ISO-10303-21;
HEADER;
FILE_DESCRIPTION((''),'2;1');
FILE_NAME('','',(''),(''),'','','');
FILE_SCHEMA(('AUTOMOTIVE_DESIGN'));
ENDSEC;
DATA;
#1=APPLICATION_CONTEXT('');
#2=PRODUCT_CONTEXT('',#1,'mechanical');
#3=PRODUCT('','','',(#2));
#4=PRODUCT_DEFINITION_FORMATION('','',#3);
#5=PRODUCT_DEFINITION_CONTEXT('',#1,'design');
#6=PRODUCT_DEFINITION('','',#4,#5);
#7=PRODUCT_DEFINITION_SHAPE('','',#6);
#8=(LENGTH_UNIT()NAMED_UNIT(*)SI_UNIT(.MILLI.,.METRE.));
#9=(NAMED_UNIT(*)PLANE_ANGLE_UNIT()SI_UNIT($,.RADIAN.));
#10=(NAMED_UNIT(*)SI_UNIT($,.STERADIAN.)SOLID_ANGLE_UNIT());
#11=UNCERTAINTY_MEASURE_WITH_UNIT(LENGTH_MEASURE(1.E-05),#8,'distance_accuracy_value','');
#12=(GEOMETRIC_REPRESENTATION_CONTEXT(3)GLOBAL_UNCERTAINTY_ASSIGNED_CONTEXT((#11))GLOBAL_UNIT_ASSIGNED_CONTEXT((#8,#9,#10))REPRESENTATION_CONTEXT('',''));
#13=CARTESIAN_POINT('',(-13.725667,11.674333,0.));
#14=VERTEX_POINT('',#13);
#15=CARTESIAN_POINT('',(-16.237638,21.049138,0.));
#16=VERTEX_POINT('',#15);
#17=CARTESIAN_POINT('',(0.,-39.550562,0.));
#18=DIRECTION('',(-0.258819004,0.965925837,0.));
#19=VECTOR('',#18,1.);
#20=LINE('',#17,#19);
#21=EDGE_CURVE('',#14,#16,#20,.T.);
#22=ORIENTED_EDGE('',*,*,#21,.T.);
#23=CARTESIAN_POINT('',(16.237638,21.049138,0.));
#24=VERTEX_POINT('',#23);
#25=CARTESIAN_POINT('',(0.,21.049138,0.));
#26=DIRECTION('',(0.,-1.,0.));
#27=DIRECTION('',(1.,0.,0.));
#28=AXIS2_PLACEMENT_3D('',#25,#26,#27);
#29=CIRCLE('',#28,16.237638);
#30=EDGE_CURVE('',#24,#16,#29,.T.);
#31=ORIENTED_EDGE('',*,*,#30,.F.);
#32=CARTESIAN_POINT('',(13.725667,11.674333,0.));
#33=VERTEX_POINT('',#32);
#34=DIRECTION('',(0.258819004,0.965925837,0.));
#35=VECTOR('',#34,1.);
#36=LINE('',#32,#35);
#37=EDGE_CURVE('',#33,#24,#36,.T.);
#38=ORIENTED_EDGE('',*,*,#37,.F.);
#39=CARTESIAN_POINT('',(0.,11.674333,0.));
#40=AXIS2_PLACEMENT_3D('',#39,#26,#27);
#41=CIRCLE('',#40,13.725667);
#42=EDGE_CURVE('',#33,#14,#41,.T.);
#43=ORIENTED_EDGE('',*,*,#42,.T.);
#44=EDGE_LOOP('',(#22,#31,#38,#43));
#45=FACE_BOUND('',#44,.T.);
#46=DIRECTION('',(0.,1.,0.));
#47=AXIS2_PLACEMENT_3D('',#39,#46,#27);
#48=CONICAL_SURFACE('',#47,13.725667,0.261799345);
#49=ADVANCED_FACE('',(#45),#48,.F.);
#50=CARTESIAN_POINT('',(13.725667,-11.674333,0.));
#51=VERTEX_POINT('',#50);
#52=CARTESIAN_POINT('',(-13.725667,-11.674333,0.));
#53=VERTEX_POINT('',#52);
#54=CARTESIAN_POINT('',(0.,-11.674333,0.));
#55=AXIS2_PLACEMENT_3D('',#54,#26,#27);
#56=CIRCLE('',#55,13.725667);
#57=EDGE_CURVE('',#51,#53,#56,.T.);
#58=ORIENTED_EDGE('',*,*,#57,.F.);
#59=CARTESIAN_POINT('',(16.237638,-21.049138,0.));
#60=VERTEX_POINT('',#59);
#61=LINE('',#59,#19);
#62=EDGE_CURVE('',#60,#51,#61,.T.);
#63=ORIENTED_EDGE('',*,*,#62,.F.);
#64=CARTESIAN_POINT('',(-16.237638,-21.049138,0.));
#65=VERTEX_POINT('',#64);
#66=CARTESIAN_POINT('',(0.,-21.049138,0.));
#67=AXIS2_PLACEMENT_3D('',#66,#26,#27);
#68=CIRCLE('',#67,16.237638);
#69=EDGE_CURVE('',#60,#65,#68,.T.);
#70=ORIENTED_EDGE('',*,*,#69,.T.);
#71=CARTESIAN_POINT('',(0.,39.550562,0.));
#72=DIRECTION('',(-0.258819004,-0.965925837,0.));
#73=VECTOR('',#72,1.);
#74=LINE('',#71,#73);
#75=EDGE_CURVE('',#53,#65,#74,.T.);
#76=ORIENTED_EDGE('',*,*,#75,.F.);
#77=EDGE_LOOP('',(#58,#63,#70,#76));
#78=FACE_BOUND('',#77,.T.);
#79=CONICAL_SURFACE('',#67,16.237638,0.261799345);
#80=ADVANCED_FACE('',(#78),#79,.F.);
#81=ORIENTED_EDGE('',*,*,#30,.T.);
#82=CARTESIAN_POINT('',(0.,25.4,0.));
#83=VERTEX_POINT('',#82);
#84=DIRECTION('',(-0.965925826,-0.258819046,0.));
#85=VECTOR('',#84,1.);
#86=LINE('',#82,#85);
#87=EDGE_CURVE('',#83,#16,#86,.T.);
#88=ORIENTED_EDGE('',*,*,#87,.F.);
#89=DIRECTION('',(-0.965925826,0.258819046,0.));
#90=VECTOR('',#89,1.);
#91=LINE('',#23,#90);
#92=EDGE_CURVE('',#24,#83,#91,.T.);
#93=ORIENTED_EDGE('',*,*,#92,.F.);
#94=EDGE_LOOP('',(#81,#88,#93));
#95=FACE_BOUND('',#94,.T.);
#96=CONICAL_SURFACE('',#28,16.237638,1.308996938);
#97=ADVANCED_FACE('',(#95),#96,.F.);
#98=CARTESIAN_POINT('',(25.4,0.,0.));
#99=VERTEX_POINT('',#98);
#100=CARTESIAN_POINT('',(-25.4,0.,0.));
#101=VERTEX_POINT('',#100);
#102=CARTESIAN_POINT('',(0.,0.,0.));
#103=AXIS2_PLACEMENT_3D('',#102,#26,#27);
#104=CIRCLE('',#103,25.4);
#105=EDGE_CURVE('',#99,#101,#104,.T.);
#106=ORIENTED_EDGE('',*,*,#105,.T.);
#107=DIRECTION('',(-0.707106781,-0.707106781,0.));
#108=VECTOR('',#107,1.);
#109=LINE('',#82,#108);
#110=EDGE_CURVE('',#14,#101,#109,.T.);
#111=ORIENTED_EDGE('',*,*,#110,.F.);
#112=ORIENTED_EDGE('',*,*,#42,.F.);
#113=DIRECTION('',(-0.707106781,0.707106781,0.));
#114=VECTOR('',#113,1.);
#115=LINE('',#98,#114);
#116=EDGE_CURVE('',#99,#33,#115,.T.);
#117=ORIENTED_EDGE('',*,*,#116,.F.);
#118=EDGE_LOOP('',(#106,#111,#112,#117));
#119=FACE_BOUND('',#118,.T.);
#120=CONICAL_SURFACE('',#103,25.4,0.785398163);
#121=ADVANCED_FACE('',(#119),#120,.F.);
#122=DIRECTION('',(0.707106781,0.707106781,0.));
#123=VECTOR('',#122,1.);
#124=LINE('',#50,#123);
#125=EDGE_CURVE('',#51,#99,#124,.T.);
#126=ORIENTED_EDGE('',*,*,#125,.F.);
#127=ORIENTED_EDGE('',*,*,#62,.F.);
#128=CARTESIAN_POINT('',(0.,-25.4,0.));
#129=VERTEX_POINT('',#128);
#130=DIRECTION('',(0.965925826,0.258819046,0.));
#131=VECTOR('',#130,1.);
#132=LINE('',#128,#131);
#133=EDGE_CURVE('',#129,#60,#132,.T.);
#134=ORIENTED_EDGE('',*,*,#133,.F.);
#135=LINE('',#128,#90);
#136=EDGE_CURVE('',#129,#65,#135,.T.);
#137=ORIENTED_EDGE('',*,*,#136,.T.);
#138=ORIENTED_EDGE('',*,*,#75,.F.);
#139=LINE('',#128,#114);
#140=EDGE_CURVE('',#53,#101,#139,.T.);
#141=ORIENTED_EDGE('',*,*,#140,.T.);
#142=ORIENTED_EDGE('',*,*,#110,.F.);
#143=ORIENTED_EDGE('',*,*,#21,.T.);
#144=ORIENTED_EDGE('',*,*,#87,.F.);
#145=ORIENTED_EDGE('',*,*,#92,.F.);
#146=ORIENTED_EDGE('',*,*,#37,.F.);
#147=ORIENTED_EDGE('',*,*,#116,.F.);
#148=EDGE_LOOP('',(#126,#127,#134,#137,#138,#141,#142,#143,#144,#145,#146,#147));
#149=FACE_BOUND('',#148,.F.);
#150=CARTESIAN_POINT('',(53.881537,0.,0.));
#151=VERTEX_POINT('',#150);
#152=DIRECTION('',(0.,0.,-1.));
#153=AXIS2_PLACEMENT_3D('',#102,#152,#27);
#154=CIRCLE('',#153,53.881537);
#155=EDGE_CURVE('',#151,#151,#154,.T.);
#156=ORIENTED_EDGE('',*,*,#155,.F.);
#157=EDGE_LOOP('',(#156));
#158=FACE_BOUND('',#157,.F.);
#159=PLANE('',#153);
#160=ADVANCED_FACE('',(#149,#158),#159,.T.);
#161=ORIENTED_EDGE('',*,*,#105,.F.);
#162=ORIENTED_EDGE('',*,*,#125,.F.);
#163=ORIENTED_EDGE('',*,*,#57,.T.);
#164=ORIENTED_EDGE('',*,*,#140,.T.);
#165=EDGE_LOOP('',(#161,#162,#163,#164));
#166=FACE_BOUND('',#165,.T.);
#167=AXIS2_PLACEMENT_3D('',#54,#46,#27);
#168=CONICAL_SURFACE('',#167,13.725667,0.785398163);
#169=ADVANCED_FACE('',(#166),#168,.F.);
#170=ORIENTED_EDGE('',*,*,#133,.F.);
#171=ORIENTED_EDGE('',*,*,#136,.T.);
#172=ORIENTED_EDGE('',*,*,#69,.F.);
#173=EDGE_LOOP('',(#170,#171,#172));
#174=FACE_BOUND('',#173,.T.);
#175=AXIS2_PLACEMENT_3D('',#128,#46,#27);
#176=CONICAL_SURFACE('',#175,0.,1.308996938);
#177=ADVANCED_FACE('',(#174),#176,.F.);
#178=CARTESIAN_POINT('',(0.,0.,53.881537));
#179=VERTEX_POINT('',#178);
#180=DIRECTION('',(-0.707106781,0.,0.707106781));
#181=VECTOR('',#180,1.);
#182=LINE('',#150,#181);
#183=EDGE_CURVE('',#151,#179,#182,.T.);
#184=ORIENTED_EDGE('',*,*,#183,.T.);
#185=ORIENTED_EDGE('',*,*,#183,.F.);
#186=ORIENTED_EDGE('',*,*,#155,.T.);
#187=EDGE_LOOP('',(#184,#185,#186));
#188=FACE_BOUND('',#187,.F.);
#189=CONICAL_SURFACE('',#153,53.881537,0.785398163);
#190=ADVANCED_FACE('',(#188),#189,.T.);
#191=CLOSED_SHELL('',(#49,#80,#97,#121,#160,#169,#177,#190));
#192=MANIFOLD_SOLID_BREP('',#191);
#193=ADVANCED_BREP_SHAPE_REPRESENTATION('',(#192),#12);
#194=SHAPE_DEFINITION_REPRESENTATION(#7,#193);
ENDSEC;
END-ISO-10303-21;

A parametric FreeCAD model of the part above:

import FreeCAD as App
import Part
import Sketcher
Q = App.Units.Quantity

doc = App.newDocument("Part")
body = doc.addObject("PartDesign::Body", "Body")

# Sketch on XZ plane
sketch1 = body.newObject("Sketcher::SketchObject", "Sketch")
sketch1.AttachmentSupport = (doc.getObject("XZ_Plane"), [""])
sketch1.MapMode = "FlatFace"
sketch1.addGeometry([
    Part.LineSegment(App.Vector(54, 0, 0), App.Vector(0, 54, 0)),
    Part.LineSegment(App.Vector(0, 54, 0), App.Vector(0, 0, 0)),
    Part.LineSegment(App.Vector(0, 0, 0), App.Vector(54, 0, 0)),
], False)
sketch1.addConstraint([
    Sketcher.Constraint("Coincident", 0, 2, 1, 1),
    Sketcher.Constraint("Coincident", 1, 2, 2, 1),
    Sketcher.Constraint("Coincident", 2, 2, 0, 1),
    Sketcher.Constraint("Vertical", 1),
    Sketcher.Constraint("Horizontal", 2),
    Sketcher.Constraint("Coincident", 1, 2, -1, 1),
    Sketcher.Constraint("Equal", 2, 1),
    Sketcher.Constraint("Distance", 0, Q("3 in")),
])
revolution = body.newObject("PartDesign::Revolution", "Revolution")
revolution.Profile = sketch1
revolution.ReferenceAxis = (sketch1, ["V_Axis"])
revolution.Angle = 360
body2 = doc.addObject("PartDesign::Body", "Body001")

# Sketch on XY plane
sketch2 = body2.newObject("Sketcher::SketchObject", "Sketch001")
sketch2.AttachmentSupport = (doc.getObject("XY_Plane001"), [""])
sketch2.MapMode = "FlatFace"
sketch2.addGeometry([
    Part.LineSegment(App.Vector(0, 25, 0), App.Vector(0, -25, 0)),  # 0
    Part.LineSegment(App.Vector(0, -25, 0), App.Vector(16, -21, 0)),  # 1
    Part.LineSegment(App.Vector(16, -21, 0), App.Vector(14, -12, 0)),  # 2
    Part.LineSegment(App.Vector(14, -12, 0), App.Vector(25, 0, 0)),  # 3
    Part.LineSegment(App.Vector(25, 0, 0), App.Vector(14, 12, 0)),  # 4
    Part.LineSegment(App.Vector(14, 12, 0), App.Vector(16, 21, 0)),  # 5
    Part.LineSegment(App.Vector(16, 21, 0), App.Vector(0, 25, 0)),  # 6
], False)
sketch2.addConstraint([
    Sketcher.Constraint("Coincident", 0, 2, 1, 1),
    Sketcher.Constraint("Coincident", 1, 2, 2, 1),
    Sketcher.Constraint("Coincident", 2, 2, 3, 1),
    Sketcher.Constraint("Coincident", 3, 2, 4, 1),
    Sketcher.Constraint("Coincident", 4, 2, 5, 1),
    Sketcher.Constraint("Coincident", 5, 2, 6, 1),
    Sketcher.Constraint("Coincident", 6, 2, 0, 1),
    Sketcher.Constraint("Vertical", 0),
    Sketcher.Constraint("Symmetric", 0, 2, 6, 2, -1, 1),
    Sketcher.Constraint("Symmetric", 2, 2, 4, 2, -1),
    Sketcher.Constraint("Symmetric", 1, 2, 5, 2, -1),
    Sketcher.Constraint("PointOnObject", 3, 2, -1),
    Sketcher.Constraint("Perpendicular", 1, 2),
    Sketcher.Constraint("Perpendicular", 3, 4),
    Sketcher.Constraint("DistanceY", 0, 2, 0, 1, Q("2 in")),
    Sketcher.Constraint("DistanceX", -1, 1, 3, 2, Q("1 in")),
    Sketcher.Constraint("Angle", 1, Q("15 deg")),
    Sketcher.Constraint("Distance", 3, Q("0.65 in")),
])
revolution2 = body2.newObject("PartDesign::Revolution", "Revolution001")
revolution2.Profile = sketch2
revolution2.ReferenceAxis = (sketch2, ["V_Axis"])
revolution2.Angle = 360
doc.recompute()

boolean = body.newObject("PartDesign::Boolean", "Boolean")
boolean.Type = "Cut"
boolean.addObjects([body2])

doc.recompute()
